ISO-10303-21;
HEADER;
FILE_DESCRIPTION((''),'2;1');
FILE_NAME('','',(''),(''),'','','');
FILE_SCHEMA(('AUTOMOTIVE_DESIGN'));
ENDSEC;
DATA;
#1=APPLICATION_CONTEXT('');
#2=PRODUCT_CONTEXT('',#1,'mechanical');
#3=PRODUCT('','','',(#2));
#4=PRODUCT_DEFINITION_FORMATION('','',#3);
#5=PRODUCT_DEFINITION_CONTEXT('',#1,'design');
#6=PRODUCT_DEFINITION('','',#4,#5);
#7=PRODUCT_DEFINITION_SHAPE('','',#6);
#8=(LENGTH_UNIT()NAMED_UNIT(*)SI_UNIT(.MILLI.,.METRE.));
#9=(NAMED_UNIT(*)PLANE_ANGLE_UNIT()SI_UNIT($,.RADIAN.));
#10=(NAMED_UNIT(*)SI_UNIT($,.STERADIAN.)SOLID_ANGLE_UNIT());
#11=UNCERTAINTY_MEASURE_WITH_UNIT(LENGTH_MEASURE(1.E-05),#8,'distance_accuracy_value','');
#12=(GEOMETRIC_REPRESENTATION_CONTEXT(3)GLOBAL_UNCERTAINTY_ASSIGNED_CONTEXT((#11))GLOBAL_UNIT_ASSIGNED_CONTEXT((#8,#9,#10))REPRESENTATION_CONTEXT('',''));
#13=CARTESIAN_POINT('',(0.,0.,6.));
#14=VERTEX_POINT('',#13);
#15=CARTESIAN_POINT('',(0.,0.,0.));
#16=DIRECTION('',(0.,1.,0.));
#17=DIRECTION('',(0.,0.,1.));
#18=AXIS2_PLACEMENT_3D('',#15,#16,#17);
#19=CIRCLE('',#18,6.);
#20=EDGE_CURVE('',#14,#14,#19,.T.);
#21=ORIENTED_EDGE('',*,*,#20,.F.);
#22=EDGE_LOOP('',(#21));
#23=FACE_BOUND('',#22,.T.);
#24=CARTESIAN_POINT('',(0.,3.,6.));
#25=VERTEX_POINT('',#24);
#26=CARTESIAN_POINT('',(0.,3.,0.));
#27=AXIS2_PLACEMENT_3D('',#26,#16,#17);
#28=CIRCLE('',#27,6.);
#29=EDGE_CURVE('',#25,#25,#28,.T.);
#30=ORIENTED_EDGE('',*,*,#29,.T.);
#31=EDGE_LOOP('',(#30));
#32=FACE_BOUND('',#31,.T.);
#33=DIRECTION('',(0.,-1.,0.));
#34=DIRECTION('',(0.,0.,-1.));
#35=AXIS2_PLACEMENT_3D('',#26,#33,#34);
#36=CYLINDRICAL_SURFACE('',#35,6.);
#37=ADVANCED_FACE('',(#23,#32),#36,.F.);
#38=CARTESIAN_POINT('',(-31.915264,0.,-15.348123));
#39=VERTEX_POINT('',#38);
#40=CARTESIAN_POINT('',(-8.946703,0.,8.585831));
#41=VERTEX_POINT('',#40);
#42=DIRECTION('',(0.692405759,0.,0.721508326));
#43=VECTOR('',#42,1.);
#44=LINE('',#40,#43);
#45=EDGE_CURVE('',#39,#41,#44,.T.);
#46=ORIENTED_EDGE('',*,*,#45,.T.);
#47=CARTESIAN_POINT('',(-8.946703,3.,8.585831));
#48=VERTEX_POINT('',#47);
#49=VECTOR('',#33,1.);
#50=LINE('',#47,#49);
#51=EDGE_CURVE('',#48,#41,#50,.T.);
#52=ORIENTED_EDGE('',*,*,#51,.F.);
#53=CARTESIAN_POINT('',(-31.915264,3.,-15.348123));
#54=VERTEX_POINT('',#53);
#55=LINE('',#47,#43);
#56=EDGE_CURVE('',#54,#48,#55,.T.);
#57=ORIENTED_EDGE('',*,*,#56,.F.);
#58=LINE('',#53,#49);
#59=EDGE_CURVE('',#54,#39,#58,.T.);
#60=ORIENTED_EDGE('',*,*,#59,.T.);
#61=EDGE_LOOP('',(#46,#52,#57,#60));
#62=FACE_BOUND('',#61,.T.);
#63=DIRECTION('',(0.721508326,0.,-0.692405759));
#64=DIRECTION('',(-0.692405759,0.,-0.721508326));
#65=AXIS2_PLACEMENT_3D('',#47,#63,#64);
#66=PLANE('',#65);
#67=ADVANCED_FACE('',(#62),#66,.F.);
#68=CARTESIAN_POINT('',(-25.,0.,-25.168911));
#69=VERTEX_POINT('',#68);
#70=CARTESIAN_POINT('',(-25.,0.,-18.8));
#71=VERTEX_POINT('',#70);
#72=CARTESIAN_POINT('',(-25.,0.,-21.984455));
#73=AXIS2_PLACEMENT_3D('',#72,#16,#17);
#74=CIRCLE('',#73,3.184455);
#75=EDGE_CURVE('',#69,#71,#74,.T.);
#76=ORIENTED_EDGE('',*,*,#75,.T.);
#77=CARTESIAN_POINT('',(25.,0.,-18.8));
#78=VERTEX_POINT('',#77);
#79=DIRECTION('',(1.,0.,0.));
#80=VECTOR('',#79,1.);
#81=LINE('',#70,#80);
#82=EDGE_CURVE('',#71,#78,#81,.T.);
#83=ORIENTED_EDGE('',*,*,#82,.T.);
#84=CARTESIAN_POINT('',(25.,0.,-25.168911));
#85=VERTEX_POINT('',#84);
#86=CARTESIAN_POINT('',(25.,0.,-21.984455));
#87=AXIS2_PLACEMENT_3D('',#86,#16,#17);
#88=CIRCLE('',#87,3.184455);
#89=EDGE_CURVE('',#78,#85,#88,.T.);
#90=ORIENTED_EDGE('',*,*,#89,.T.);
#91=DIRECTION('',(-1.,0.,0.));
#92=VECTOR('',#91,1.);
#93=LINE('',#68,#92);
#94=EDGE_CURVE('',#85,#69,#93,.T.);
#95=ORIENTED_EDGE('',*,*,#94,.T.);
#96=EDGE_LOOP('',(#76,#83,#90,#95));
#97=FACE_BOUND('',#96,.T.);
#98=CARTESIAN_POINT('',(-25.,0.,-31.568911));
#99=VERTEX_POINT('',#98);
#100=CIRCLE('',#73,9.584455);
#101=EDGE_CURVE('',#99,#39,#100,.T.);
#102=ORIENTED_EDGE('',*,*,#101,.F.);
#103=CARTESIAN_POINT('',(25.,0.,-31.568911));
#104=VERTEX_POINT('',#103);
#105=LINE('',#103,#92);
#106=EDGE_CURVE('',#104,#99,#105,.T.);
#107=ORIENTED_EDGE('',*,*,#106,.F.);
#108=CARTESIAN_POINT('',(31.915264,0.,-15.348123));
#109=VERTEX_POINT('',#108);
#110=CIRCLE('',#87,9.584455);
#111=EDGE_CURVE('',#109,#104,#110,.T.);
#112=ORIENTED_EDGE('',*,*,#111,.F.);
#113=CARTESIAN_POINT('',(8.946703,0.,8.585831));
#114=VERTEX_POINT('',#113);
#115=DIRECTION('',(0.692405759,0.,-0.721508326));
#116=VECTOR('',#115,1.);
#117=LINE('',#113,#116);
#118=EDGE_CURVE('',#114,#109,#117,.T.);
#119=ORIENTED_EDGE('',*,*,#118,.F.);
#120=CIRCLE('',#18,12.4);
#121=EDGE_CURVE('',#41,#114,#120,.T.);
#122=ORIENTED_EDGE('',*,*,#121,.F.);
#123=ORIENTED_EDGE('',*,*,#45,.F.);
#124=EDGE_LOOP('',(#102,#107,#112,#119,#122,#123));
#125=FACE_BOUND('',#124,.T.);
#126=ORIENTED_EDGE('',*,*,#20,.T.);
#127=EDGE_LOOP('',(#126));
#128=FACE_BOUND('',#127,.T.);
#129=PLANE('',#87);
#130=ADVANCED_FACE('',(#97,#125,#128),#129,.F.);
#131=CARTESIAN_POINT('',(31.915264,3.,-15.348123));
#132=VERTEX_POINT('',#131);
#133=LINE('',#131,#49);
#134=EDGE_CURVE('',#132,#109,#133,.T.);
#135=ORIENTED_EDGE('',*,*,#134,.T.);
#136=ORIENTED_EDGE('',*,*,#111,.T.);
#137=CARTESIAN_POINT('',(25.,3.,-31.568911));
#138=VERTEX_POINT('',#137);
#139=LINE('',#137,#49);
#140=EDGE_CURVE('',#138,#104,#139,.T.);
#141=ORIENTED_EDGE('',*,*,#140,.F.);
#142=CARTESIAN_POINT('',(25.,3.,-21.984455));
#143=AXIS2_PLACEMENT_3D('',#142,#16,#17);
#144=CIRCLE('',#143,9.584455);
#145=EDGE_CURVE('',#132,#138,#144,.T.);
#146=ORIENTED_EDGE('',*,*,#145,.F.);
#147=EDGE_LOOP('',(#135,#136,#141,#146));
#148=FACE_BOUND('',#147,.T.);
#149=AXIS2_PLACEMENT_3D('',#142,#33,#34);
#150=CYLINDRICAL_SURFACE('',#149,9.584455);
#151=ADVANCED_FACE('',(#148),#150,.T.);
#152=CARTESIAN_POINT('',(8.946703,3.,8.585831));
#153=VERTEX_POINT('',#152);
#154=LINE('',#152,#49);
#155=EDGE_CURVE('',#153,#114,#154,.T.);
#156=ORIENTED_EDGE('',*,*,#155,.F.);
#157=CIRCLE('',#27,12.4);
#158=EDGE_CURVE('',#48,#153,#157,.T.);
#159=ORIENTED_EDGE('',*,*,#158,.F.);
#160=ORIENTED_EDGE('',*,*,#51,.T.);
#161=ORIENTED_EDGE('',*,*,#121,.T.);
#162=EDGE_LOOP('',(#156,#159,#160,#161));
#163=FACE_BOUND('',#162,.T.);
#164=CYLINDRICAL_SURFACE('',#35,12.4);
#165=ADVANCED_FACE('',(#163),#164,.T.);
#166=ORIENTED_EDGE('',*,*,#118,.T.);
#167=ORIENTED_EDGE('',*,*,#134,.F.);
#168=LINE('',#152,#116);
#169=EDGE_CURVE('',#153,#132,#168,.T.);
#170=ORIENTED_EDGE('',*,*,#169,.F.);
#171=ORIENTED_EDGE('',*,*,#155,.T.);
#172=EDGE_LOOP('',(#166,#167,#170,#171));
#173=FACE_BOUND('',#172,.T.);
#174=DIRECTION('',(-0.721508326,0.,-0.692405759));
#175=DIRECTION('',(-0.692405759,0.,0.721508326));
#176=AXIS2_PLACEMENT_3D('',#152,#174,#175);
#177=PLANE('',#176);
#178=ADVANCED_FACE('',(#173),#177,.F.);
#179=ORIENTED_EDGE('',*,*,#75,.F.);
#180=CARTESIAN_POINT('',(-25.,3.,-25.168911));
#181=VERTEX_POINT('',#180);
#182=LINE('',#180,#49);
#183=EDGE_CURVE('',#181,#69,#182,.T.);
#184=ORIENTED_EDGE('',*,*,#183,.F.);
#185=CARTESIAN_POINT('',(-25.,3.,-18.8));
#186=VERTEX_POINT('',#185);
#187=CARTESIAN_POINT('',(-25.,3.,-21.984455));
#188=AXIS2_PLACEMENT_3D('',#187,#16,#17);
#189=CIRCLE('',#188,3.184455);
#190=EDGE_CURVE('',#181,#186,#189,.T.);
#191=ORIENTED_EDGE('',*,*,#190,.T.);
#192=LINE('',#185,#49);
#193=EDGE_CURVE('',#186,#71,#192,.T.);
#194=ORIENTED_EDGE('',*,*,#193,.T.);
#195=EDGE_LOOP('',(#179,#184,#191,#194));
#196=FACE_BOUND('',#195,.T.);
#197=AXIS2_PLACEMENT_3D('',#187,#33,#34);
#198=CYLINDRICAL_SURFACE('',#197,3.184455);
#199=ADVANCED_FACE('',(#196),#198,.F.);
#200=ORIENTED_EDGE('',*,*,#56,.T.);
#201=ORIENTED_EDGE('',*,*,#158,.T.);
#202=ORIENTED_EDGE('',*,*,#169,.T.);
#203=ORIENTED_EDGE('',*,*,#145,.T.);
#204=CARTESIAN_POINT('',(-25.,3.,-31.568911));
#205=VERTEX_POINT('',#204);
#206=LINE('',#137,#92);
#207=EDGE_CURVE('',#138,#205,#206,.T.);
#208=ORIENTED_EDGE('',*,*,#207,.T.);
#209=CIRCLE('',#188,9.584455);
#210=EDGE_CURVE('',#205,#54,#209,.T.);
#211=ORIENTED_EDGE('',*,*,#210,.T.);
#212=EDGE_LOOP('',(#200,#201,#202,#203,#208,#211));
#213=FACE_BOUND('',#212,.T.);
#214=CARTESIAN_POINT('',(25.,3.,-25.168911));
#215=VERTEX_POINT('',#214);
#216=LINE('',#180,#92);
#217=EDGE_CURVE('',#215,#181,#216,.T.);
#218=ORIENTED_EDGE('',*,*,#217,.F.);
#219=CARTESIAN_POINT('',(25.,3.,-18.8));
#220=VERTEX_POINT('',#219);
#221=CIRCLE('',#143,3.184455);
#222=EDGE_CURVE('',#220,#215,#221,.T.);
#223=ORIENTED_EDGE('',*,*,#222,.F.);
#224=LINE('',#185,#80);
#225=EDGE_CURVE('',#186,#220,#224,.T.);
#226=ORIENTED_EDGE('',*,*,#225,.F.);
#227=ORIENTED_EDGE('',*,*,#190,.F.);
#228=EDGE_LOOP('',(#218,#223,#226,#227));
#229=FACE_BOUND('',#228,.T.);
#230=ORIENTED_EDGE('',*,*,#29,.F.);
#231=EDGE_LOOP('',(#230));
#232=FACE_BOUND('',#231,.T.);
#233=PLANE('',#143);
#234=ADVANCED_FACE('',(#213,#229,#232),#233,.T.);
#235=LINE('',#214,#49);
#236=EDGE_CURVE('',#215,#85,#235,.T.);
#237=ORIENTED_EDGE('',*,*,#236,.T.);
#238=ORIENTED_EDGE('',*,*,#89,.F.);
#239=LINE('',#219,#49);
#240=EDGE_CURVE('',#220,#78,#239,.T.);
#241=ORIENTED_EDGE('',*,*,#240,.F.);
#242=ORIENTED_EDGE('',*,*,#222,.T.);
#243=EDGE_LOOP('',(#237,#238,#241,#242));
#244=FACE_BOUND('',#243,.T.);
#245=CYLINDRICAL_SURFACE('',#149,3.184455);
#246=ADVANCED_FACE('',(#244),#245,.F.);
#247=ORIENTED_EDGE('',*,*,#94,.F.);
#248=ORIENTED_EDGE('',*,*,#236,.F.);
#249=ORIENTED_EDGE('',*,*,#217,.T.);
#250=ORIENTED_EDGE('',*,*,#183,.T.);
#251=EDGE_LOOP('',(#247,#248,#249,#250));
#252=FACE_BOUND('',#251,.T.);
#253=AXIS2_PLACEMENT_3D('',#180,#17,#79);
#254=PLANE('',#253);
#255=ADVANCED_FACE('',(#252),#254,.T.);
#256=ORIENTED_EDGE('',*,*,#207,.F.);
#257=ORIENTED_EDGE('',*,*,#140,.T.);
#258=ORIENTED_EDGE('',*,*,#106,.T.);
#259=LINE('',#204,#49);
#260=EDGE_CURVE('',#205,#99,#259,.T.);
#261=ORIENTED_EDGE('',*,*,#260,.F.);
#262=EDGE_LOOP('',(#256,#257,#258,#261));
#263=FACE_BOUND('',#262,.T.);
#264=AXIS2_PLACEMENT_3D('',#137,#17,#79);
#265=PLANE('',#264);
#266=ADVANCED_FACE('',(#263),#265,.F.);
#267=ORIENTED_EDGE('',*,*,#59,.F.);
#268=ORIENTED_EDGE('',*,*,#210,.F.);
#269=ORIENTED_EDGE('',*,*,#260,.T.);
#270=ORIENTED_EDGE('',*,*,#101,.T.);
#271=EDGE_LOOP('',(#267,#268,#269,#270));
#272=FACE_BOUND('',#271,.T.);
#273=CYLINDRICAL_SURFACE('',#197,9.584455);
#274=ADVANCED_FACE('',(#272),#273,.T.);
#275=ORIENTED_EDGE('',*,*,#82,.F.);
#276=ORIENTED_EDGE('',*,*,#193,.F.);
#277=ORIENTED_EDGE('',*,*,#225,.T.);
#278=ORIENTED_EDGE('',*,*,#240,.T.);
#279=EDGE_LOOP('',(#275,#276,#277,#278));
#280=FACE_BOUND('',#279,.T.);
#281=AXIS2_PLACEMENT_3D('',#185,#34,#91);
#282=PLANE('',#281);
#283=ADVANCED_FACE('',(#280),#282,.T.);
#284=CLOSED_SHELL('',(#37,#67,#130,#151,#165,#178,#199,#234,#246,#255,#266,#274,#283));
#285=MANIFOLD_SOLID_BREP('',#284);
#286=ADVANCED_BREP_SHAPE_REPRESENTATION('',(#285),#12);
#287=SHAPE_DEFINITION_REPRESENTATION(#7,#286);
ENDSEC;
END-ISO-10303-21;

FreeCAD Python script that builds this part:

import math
import FreeCAD as App
import Part
import Sketcher
from FreeCAD import Vector

doc = App.newDocument("Part")
body = doc.addObject("PartDesign::Body", "Body")

# Sketch on XZ plane
sketch1 = doc.addObject("Sketcher::SketchObject", "Sketch")
body.addObject(sketch1)
sketch1.AttachmentSupport = (doc.XZ_Plane, [""])
sketch1.MapMode = "FlatFace"
sketch1.addGeometry(Part.LineSegment(Vector(25, -31.6, 0), Vector(-25, -31.6, 0)), False)
sketch1.addGeometry(Part.ArcOfCircle(Part.Circle(Vector(-25, -22, 0), Vector(0, 0, 1), 9.6), math.radians(136), math.radians(270)), False)
sketch1.addGeometry(Part.LineSegment(Vector(-31.9, -15.3, 0), Vector(-8.9, 8.6, 0)), False)
sketch1.addGeometry(Part.ArcOfCircle(Part.Circle(Vector(0, 0, 0), Vector(0, 0, 1), 12.4), math.radians(44), math.radians(136)), False)
sketch1.addGeometry(Part.LineSegment(Vector(8.9, 8.6, 0), Vector(31.9, -15.3, 0)), False)
sketch1.addGeometry(Part.ArcOfCircle(Part.Circle(Vector(25, -22, 0), Vector(0, 0, 1), 9.6), math.radians(-90), math.radians(44)), False)
sketch1.addGeometry(Part.Circle(Vector(0, 0, 0), Vector(0, 0, 1), 6), False)
sketch1.addGeometry(Part.ArcOfCircle(Part.Circle(Vector(-25, -22, 0), Vector(0, 0, 1), 3.2), math.radians(90), math.radians(270)), False)
sketch1.addGeometry(Part.LineSegment(Vector(-25, -25.2, 0), Vector(25, -25.2, 0)), False)
sketch1.addGeometry(Part.ArcOfCircle(Part.Circle(Vector(25, -22, 0), Vector(0, 0, 1), 3.2), math.radians(-90), math.radians(90)), False)
sketch1.addGeometry(Part.LineSegment(Vector(25, -18.8, 0), Vector(-25, -18.8, 0)), False)
sketch1.addConstraint(Sketcher.Constraint("Tangent", 0, 2, 1, 2))
sketch1.addConstraint(Sketcher.Constraint("Tangent", 1, 1, 2, 1))
sketch1.addConstraint(Sketcher.Constraint("Tangent", 2, 2, 3, 2))
sketch1.addConstraint(Sketcher.Constraint("Tangent", 3, 1, 4, 1))
sketch1.addConstraint(Sketcher.Constraint("Tangent", 4, 2, 5, 2))
sketch1.addConstraint(Sketcher.Constraint("Tangent", 5, 1, 0, 1))
sketch1.addConstraint(Sketcher.Constraint("Tangent", 7, 2, 8, 1))
sketch1.addConstraint(Sketcher.Constraint("Tangent", 8, 2, 9, 1))
sketch1.addConstraint(Sketcher.Constraint("Tangent", 9, 2, 10, 1))
sketch1.addConstraint(Sketcher.Constraint("Tangent", 10, 2, 7, 1))
sketch1.addConstraint(Sketcher.Constraint("Horizontal", 0))
sketch1.addConstraint(Sketcher.Constraint("Horizontal", 8))
sketch1.addConstraint(Sketcher.Constraint("Horizontal", 10))
sketch1.addConstraint(Sketcher.Constraint("Coincident", 3, 3, -1, 1))
sketch1.addConstraint(Sketcher.Constraint("Coincident", 6, 3, -1, 1))
sketch1.addConstraint(Sketcher.Constraint("Coincident", 7, 3, 1, 3))
sketch1.addConstraint(Sketcher.Constraint("Coincident", 9, 3, 5, 3))
sketch1.addConstraint(Sketcher.Constraint("Horizontal", 2, 2, 3, 1))
sketch1.addConstraint(Sketcher.Constraint("Diameter", 6, 12.0))
sketch1.addConstraint(Sketcher.Constraint("Radius", 3, 12.4))
sketch1.addConstraint(Sketcher.Constraint("DistanceX", 0, 2, 0, 1, 50.0))
sketch1.addConstraint(Sketcher.Constraint("DistanceY", 9, 2, -1, 1, 18.8))
sketch1.addConstraint(Sketcher.Constraint("DistanceY", 0, 2, 7, 2, 6.4))
sketch1.addConstraint(Sketcher.Constraint("Radius", 1, 9.584455))
pad1 = doc.addObject("PartDesign::Pad", "Pad")
body.addObject(pad1)
pad1.Profile = sketch1
pad1.Length = 3
pad1.Reversed = True

doc.recompute()
